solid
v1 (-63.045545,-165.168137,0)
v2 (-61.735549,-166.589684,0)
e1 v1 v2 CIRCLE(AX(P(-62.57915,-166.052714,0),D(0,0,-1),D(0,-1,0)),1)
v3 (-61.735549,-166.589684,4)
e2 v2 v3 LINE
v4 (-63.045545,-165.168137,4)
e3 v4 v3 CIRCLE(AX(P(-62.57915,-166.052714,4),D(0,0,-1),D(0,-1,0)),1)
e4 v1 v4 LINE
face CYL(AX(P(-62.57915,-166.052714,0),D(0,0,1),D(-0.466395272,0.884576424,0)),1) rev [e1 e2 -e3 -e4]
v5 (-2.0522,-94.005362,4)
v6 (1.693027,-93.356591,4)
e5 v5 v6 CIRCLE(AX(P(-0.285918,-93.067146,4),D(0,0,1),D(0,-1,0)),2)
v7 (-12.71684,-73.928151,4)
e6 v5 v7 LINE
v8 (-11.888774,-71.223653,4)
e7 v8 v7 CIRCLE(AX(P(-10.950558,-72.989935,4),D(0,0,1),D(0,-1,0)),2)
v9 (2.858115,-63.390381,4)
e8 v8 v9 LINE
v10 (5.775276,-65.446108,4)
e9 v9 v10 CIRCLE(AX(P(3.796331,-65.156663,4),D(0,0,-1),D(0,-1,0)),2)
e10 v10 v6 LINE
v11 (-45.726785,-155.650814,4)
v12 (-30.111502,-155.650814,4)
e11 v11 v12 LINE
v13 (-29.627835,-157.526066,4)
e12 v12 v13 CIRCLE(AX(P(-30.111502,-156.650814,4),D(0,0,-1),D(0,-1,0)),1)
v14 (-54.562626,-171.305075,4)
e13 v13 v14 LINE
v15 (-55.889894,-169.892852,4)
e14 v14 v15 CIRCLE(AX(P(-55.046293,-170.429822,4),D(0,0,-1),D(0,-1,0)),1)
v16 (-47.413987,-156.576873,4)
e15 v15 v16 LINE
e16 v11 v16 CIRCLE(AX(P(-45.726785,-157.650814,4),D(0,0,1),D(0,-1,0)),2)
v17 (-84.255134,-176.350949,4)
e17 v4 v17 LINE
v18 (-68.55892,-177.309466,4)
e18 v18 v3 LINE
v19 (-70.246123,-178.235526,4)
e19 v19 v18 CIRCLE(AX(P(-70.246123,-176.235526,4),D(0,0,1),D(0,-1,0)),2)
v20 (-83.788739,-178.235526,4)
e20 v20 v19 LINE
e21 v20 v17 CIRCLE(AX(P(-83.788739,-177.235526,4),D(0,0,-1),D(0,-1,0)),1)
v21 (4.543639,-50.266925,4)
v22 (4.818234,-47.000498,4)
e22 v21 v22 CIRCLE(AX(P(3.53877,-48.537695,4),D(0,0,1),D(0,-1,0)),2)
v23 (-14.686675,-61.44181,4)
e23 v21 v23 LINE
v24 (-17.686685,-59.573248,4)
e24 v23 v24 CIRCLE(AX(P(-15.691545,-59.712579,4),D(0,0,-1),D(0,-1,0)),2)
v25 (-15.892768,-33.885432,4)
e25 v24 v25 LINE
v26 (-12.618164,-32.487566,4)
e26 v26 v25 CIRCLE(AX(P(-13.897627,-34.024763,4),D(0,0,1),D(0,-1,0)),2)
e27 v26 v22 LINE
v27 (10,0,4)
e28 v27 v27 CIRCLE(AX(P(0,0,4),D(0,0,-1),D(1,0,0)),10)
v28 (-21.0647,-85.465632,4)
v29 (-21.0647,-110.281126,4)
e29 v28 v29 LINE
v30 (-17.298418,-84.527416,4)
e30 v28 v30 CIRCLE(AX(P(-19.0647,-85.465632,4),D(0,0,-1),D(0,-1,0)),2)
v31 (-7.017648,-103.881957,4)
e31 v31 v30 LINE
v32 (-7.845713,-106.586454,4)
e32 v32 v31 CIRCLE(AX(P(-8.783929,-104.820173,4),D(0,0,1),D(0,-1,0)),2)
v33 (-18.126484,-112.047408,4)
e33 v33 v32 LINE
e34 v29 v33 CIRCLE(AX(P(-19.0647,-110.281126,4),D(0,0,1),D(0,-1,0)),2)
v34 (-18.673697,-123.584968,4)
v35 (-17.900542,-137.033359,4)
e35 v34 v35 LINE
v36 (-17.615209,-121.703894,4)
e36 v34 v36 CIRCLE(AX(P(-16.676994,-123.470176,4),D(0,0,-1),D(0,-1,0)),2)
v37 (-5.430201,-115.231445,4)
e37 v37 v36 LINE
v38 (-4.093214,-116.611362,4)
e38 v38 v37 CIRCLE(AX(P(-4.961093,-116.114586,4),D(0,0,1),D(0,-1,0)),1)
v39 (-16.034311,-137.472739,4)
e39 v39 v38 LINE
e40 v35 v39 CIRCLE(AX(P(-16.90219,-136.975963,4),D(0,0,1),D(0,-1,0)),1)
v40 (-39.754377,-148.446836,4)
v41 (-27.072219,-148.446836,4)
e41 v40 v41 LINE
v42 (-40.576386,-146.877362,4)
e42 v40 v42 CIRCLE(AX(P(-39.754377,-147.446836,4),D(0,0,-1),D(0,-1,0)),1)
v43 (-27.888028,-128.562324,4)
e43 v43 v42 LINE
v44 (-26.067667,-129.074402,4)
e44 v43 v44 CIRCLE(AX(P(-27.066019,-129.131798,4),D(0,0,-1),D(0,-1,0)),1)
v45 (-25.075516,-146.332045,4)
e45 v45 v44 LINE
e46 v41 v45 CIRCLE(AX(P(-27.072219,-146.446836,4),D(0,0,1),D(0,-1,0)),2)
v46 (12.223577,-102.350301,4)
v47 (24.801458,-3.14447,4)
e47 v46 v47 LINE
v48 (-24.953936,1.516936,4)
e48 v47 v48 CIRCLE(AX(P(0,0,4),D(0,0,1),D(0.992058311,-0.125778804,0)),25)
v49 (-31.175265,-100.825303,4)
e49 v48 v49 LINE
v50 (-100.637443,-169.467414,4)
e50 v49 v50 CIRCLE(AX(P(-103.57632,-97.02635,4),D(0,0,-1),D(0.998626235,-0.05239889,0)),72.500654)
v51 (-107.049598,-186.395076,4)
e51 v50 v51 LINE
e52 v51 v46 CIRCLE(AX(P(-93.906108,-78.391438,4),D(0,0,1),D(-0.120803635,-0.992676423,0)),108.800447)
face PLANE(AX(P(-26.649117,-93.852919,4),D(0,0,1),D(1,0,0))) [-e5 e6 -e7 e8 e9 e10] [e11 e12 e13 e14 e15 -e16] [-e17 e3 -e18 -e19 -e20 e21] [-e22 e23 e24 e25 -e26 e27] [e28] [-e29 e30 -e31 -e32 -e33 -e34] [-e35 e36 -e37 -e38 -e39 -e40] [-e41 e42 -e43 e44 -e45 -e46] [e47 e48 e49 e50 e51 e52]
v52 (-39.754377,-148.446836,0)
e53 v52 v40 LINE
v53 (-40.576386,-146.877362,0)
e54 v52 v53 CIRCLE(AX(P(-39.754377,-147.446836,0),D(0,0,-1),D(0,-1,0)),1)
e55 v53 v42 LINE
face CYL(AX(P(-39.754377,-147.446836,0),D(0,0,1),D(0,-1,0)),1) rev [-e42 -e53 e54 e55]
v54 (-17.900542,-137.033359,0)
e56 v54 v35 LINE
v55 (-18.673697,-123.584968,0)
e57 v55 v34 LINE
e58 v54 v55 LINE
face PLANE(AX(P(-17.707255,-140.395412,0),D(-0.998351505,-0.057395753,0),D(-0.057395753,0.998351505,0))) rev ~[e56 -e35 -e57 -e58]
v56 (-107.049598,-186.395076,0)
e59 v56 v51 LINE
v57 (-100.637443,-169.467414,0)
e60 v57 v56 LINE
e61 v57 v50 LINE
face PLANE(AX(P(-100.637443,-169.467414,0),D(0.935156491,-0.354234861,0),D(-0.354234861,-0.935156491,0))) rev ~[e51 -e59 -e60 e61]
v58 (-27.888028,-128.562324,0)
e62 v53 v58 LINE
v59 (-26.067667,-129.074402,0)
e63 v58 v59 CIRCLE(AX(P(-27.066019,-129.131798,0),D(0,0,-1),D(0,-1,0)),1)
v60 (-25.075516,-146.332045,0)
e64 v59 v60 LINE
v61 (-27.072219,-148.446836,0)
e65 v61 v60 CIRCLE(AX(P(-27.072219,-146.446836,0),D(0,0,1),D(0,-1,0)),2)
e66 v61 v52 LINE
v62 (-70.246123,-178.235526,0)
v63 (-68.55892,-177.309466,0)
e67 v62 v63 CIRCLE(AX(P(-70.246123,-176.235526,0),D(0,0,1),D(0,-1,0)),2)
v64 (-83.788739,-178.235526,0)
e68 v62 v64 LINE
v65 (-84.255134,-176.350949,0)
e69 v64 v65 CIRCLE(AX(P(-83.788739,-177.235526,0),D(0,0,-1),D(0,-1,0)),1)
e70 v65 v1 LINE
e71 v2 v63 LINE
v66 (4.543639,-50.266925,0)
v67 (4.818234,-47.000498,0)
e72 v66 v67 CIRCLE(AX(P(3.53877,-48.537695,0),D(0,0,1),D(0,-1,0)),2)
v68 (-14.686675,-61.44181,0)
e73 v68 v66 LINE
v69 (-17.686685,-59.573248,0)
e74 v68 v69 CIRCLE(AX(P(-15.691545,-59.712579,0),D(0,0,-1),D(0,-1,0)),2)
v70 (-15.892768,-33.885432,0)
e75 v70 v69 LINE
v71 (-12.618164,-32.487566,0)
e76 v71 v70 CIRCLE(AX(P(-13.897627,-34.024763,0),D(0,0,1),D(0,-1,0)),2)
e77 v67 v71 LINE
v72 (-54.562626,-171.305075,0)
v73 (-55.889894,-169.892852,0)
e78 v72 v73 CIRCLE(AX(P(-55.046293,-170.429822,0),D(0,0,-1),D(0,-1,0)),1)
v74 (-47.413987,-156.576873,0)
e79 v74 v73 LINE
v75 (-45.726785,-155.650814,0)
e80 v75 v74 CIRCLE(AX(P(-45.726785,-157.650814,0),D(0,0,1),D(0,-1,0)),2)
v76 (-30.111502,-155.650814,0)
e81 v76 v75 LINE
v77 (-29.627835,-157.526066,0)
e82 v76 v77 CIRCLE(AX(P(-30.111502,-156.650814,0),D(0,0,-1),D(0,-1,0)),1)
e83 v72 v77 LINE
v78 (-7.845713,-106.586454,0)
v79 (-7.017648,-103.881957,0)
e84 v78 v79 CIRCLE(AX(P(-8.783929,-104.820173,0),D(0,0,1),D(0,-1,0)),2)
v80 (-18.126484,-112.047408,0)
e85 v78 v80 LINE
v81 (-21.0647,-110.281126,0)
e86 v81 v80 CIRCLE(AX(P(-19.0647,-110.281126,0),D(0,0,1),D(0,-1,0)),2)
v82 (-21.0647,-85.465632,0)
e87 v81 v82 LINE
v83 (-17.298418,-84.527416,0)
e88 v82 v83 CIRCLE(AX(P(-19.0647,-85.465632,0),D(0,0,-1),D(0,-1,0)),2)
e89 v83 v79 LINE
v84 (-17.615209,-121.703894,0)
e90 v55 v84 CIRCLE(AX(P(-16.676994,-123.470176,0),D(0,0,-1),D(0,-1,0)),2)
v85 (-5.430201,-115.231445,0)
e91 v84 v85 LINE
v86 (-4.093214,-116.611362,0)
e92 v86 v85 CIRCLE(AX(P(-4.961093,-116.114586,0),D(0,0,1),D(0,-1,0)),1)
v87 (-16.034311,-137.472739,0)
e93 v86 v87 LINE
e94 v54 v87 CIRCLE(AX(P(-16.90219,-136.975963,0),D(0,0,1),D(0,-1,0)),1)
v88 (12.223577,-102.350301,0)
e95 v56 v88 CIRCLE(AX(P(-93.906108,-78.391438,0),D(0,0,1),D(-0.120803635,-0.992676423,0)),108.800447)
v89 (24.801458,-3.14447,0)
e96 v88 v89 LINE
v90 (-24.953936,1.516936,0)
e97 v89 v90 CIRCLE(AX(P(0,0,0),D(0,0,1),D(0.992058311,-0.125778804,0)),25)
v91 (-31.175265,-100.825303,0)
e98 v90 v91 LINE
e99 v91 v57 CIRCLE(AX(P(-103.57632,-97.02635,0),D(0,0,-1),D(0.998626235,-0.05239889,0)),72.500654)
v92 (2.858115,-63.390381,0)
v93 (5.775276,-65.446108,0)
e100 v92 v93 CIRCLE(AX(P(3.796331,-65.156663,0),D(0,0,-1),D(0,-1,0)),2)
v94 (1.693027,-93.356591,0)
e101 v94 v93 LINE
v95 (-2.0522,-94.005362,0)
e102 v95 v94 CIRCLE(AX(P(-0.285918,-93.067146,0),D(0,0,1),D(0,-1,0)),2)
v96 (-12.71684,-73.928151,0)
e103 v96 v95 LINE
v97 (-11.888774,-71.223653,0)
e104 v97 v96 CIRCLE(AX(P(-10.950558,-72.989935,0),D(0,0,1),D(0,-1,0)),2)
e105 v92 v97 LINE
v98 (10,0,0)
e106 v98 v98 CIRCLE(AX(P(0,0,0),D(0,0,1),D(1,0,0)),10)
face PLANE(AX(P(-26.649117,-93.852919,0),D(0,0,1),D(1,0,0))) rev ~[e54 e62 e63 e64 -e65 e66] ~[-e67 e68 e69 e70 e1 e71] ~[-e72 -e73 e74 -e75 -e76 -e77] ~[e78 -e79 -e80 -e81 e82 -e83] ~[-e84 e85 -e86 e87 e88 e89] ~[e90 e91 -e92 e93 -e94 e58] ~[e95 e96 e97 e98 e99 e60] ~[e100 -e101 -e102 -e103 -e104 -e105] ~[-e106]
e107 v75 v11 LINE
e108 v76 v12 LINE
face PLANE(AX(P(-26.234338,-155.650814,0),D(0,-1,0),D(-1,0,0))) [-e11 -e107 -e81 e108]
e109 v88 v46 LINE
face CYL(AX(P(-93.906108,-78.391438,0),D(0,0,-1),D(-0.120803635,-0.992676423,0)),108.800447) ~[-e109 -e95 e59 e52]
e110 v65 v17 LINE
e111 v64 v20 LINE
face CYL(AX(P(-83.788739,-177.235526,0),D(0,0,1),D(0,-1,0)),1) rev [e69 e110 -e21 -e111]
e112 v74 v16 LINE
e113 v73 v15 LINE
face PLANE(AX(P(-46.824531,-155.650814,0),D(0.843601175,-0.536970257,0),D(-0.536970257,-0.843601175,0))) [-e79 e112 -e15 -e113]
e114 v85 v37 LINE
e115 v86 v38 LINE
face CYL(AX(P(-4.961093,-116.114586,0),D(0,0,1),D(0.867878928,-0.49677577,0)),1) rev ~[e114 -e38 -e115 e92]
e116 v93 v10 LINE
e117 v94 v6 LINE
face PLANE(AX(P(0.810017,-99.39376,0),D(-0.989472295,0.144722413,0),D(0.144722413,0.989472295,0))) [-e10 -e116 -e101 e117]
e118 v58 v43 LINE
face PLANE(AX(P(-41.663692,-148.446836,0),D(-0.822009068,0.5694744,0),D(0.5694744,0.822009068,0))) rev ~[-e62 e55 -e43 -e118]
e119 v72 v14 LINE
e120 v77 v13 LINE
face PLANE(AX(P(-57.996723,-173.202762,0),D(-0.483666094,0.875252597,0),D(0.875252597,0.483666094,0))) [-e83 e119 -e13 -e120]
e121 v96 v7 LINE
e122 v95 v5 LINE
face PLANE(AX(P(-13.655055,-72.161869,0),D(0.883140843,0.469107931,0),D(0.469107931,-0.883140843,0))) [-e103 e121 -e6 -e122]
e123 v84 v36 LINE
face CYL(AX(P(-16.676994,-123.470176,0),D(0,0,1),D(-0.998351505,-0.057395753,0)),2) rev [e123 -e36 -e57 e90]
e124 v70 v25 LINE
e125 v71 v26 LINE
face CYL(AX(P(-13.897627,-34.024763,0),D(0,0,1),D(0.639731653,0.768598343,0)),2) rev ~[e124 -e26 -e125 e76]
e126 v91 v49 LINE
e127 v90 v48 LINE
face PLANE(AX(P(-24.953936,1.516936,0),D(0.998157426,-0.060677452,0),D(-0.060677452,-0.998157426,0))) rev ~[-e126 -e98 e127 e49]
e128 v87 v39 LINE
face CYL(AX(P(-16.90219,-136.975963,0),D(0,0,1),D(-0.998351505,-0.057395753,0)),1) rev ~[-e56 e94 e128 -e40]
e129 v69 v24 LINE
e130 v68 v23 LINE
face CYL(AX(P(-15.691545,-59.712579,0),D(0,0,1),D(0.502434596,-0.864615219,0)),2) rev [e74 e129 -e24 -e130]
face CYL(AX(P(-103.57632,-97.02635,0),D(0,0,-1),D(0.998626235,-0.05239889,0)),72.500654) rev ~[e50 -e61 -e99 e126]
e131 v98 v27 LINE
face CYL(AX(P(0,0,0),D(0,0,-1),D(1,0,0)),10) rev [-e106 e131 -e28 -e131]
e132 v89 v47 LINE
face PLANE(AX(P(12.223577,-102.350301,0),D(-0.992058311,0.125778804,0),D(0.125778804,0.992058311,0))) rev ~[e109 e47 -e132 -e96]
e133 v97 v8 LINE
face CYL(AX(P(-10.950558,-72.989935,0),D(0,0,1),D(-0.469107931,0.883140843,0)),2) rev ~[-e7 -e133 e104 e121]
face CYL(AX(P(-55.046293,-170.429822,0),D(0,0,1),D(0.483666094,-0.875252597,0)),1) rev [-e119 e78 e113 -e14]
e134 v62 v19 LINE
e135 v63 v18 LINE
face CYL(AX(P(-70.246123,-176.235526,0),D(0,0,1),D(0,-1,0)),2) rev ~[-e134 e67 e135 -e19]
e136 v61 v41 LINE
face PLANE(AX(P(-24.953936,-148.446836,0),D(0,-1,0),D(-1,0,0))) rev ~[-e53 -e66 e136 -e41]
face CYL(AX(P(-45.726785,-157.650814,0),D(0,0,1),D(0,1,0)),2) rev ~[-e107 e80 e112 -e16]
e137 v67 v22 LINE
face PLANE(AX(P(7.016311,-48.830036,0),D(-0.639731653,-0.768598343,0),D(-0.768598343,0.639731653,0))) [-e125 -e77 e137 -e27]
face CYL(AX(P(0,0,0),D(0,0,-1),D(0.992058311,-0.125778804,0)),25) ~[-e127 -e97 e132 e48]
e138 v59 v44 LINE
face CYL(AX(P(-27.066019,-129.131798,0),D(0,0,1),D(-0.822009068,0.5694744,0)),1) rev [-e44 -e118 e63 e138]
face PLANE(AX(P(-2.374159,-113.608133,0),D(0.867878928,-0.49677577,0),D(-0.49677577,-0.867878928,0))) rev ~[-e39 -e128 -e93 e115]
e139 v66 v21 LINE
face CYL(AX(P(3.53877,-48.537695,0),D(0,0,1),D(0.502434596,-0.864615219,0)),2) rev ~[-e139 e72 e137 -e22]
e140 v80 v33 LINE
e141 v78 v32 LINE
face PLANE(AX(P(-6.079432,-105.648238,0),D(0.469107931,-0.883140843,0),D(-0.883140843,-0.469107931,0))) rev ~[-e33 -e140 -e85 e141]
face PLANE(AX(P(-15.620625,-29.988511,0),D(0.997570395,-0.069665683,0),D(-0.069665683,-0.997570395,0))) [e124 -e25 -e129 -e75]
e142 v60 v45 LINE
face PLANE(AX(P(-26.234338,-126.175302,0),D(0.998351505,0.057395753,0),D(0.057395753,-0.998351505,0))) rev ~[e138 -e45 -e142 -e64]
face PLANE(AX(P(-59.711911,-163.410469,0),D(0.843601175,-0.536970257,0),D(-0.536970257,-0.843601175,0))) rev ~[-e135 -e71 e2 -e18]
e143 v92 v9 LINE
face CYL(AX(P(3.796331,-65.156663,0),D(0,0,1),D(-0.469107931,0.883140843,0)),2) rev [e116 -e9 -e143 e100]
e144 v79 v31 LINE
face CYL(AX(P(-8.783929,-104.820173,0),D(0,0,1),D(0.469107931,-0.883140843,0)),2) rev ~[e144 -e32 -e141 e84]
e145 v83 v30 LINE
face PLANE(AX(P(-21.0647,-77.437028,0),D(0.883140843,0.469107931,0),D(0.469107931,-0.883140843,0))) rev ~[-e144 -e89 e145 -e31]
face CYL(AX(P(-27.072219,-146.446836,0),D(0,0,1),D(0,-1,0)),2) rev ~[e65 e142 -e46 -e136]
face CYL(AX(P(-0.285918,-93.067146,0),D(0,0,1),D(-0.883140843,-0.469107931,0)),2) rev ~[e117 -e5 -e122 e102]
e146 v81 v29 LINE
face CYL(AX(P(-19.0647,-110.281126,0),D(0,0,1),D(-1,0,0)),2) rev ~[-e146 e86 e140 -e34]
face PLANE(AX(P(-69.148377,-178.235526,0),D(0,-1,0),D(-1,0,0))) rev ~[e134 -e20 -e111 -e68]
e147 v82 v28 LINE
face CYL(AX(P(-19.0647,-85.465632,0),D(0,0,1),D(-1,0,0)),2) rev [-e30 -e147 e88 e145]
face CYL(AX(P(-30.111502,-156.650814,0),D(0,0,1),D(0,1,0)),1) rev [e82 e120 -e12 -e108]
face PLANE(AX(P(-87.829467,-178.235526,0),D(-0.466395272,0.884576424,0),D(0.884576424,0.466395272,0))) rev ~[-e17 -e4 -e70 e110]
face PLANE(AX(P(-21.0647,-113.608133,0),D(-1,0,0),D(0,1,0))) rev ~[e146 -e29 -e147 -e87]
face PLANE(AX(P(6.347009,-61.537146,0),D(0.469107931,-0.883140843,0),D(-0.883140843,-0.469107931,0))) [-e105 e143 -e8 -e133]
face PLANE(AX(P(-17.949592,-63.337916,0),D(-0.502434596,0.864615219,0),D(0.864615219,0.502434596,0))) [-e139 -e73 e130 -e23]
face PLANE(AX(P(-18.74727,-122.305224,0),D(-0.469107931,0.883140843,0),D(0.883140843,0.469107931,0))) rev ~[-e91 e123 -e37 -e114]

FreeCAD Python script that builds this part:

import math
import FreeCAD as App
import Part
import Sketcher

V = App.Vector


def edges_at(feature, points):
    """Names of the edges that pass closest to the given points."""
    edges = feature.Shape.Edges
    near = lambda p: min(range(len(edges)), key=lambda i: edges[i].distToShape(Part.Vertex(*p))[0])
    return sorted({f"Edge{near(p) + 1}" for p in points})


def add_polygon(sketch, points):
    """Adds a closed chain of lines whose ends are joined by coincident constraints."""
    first, n = sketch.GeometryCount, len(points)
    for a, b in zip(points, points[1:] + points[:1]):
        sketch.addGeometry(Part.LineSegment(App.Vector(*a, 0), App.Vector(*b, 0)), False)
    for i in range(n):
        sketch.addConstraint(Sketcher.Constraint("Coincident", first + i, 2, first + (i + 1) % n, 1))

doc = App.newDocument("Part")
body = doc.addObject("PartDesign::Body", "Body")

# Sketch on XY plane
sketch1 = body.newObject("Sketcher::SketchObject", "Sketch")
sketch1.AttachmentSupport = (doc.getObject("XY_Plane"), [""])
sketch1.MapMode = "FlatFace"
sketch1.addGeometry([
    Part.LineSegment(V(-24.953936, 1.516936, 0), V(-31.175265, -100.825303, 0)),  # 0
    Part.ArcOfCircle(Part.Circle(V(-103.57632, -97.02635, 0), V(0, 0, 1), 72.500654), math.radians(-87.676829), math.radians(-3.003611)),  # 1
    Part.LineSegment(V(-100.637443, -169.467414, 0), V(-107.049598, -186.395076, 0)),  # 2
    Part.ArcOfCircle(Part.Circle(V(-93.906108, -78.391438, 0), V(0, 0, 1), 108.800447), math.radians(-96.938485), math.radians(-12.721323)),  # 3
    Part.LineSegment(V(12.223577, -102.350301, 0), V(24.801458, -3.14447, 0)),  # 4
    Part.ArcOfCircle(Part.Circle(V(0, 0, 0), V(0, 0, 1), 25), math.radians(-7.225733), math.radians(176.521301)),  # 5
], False)
sketch1.addConstraint([
    Sketcher.Constraint("Coincident", 0, 2, 1, 2),
    Sketcher.Constraint("Coincident", 1, 1, 2, 1),
    Sketcher.Constraint("Coincident", 2, 2, 3, 1),
    Sketcher.Constraint("Coincident", 3, 2, 4, 1),
    Sketcher.Constraint("Coincident", 4, 2, 5, 1),
    Sketcher.Constraint("Coincident", 5, 2, 0, 1),
    Sketcher.Constraint("Coincident", 5, 3, -1, 1),
    Sketcher.Constraint("Radius", 5, 25.0),
    Sketcher.Constraint("Distance", 4, 100.0),
    Sketcher.Constraint("Radius", 1, 72.500654),
    Sketcher.Constraint("Radius", 3, 108.800447),
    Sketcher.Constraint("DistanceY", 3, 2, -1, 1, 102.350301),
    Sketcher.Constraint("Distance", 0, 102.531161),
    Sketcher.Constraint("DistanceX", 1, 3, -1, 1, 103.57632),
    Sketcher.Constraint("DistanceY", 1, 3, -1, 1, 97.02635),
    Sketcher.Constraint("DistanceX", 3, 3, -1, 1, 93.906108),
    Sketcher.Constraint("DistanceY", 4, 2, -1, 1, 3.14447),
    Sketcher.Constraint("DistanceY", 1, 1, 0, 2, 68.64211),
    Sketcher.Constraint("DistanceX", 2, 2, 3, 3, 13.14349),
    Sketcher.Constraint("DistanceX", 1, 1, 3, 2, 112.86102),
])
pad1 = body.newObject("PartDesign::Pad", "Pad")
pad1.Profile = sketch1
pad1.Length = 4

# Sketch on XY plane
sketch2 = body.newObject("Sketcher::SketchObject", "Sketch001")
sketch2.AttachmentSupport = (doc.getObject("XY_Plane"), [""])
sketch2.MapMode = "FlatFace"
sketch2.addGeometry(Part.Circle(V(0, 0, 0), V(0, 0, 1), 10), False)
sketch2.addConstraint([
    Sketcher.Constraint("Coincident", 0, 3, -1, 1),
    Sketcher.Constraint("Diameter", 0, 20.0),
])
pocket1 = body.newObject("PartDesign::Pocket", "Pocket")
pocket1.Profile = sketch2
pocket1.Length = 19.5
pocket1.Reversed = True

# Sketch on XY plane
sketch3 = body.newObject("Sketcher::SketchObject", "Sketch002")
sketch3.AttachmentSupport = (doc.getObject("XY_Plane"), [""])
sketch3.MapMode = "FlatFace"
add_polygon(sketch3, [(6.347009, -61.537146), (-13.655055, -72.161869), (0.810017, -99.39376)])  # lines 0-2
add_polygon(sketch3, [(-6.079432, -105.648238), (-21.0647, -77.437028), (-21.0647, -113.608133)])  # lines 3-5
add_polygon(sketch3, [(-26.234338, -155.650814), (-46.824531, -155.650814), (-57.996723, -173.202762)])  # lines 6-8
add_polygon(sketch3, [(-69.148377, -178.235526), (-59.711911, -163.410469), (-87.829467, -178.235526)])  # lines 9-11
add_polygon(sketch3, [(-24.953936, -148.446836), (-26.234338, -126.175302), (-41.663692, -148.446836)])  # lines 12-14
add_polygon(sketch3, [(-2.374159, -113.608133), (-18.74727, -122.305224), (-17.707255, -140.395412)])  # lines 15-17
add_polygon(sketch3, [(-17.949592, -63.337916), (7.016311, -48.830036), (-15.620625, -29.988511)])  # lines 18-20
sketch3.addConstraint([
    Sketcher.Constraint("Vertical", 4),
    Sketcher.Constraint("Horizontal", 6),
    Sketcher.Constraint("Horizontal", 11),
    Sketcher.Constraint("Horizontal", 14),
    Sketcher.Constraint("Perpendicular", 0, 1),
    Sketcher.Constraint("Parallel", 1, 3),
    Sketcher.Constraint("Perpendicular", 3, 5),
    Sketcher.Constraint("Parallel", 7, 9),
    Sketcher.Constraint("Parallel", 5, 15),
    Sketcher.Constraint("Parallel", 12, 16),
    Sketcher.Constraint("Horizontal", 4, 2, 17, 2),
    Sketcher.Constraint("Vertical", 8, 2, 12, 2),
    Sketcher.Constraint("Distance", 2, 38.259398),
    Sketcher.Constraint("DistanceX", 11, 1, 11, 2, 18.68109),
    Sketcher.Constraint("DistanceX", 3, 2, -1, 1, 21.0647),
    Sketcher.Constraint("DistanceY", 12, 2, -1, 1, 126.175302),
    Sketcher.Constraint("DistanceX", 6, 2, 5, 2, 40.745099),
    Sketcher.Constraint("DistanceY", 8, 2, 16, 2, 15.255402),
    Sketcher.Constraint("DistanceX", 20, 2, 2, 2, 24.296601),
    Sketcher.Constraint("Distance", 3, 31.94418),
    Sketcher.Constraint("Distance", 7, 20.805979),
    Sketcher.Constraint("Distance", 12, 22.30831),
    Sketcher.Constraint("Distance", 16, 18.120059),
    Sketcher.Constraint("Distance", 18, 28.875161),
    Sketcher.Constraint("Distance", 19, 29.452231),
    Sketcher.Constraint("DistanceX", 6, 2, 6, 1, 20.590193),
    Sketcher.Constraint("DistanceX", 14, 1, 14, 2, 16.709756),
    Sketcher.Constraint("DistanceY", 4, 2, 4, 1, 36.171105),
    Sketcher.Constraint("DistanceY", 0, 2, -1, 1, 72.161869),
    Sketcher.Constraint("DistanceY", 1, 2, -1, 1, 99.39376),
    Sketcher.Constraint("DistanceX", -1, 1, 2, 2, 6.347009),
    Sketcher.Constraint("DistanceY", 3, 2, -1, 1, 77.437028),
    Sketcher.Constraint("DistanceX", 9, 2, -1, 1, 59.711911),
    Sketcher.Constraint("DistanceY", 9, 2, -1, 1, 163.410469),
    Sketcher.Constraint("DistanceX", 13, 2, -1, 1, 41.663692),
    Sketcher.Constraint("DistanceX", 15, 2, -1, 1, 18.74727),
    Sketcher.Constraint("DistanceY", 16, 2, -1, 1, 140.395412),
    Sketcher.Constraint("DistanceX", -1, 1, 18, 2, 7.016311),
    Sketcher.Constraint("DistanceY", 19, 2, -1, 1, 29.988511),
    Sketcher.Constraint("DistanceY", 7, 2, 6, 2, 17.551949),
    Sketcher.Constraint("DistanceY", 10, 2, 6, 2, 22.584712),
    Sketcher.Constraint("DistanceY", 2, 2, 18, 2, 12.70711),
])
pocket2 = body.newObject("PartDesign::Pocket", "Pocket001")
pocket2.Profile = sketch3
pocket2.Length = 59.5
pocket2.Reversed = True
doc.recompute()

fillet = body.newObject("PartDesign::Fillet", "Fillet")
fillet.Base = (pocket2, edges_at(pocket2, [
    (-15.621, -29.989, 2),
    (-17.95, -63.338, 2),
    (7.016, -48.83, 2),
    (-21.065, -77.437, 2),
    (-21.065, -113.608, 2),
    (-6.079, -105.648, 2),
    (0.81, -99.394, 2),
    (6.347, -61.537, 2),
    (-13.655, -72.162, 2),
]))
fillet.Radius = 2
doc.recompute()

fillet2 = body.newObject("PartDesign::Fillet", "Fillet001")
fillet2.Base = (fillet, edges_at(fillet, [
    (-18.747, -122.305, 2),
    (-24.954, -148.447, 2),
    (-46.825, -155.651, 2),
    (-69.148, -178.236, 2),
]))
fillet2.Radius = 2
doc.recompute()

fillet3 = body.newObject("PartDesign::Fillet", "Fillet002")
fillet3.Base = (fillet2, edges_at(fillet2, [
    (-17.707, -140.395, 2),
    (-2.374, -113.608, 2),
    (-26.234, -126.175, 2),
    (-41.664, -148.447, 2),
    (-57.997, -173.203, 2),
    (-26.234, -155.651, 2),
    (-87.829, -178.236, 2),
    (-59.712, -163.41, 2),
]))
fillet3.Radius = 1

doc.recompute()
